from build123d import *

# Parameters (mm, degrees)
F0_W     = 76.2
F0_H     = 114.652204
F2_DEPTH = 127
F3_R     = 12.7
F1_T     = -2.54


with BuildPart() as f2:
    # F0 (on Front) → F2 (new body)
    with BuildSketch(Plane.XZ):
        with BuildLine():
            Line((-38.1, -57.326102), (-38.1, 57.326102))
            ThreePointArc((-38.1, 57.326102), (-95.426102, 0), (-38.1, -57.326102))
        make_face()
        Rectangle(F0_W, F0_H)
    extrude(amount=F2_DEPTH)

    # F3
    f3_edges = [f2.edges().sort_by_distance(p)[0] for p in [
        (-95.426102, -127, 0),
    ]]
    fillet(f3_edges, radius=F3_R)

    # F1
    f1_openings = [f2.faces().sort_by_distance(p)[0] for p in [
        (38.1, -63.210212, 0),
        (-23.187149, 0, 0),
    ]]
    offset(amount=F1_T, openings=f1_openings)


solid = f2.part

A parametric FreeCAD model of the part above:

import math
import FreeCAD as App
import Part
import Sketcher
Q = App.Units.Quantity


def edges_at(feature, points):
    """Names of the edges that pass closest to the given points."""
    edges = feature.Shape.Edges
    near = lambda p: min(range(len(edges)), key=lambda i: edges[i].distToShape(Part.Vertex(*p))[0])
    return sorted({f"Edge{near(p) + 1}" for p in points})


def faces_at(feature, points):
    """Names of the faces that lie closest to the given points."""
    faces = feature.Shape.Faces
    near = lambda p: min(range(len(faces)), key=lambda i: faces[i].distToShape(Part.Vertex(*p))[0])
    return sorted({f"Face{near(p) + 1}" for p in points})

doc = App.newDocument("Part")
body = doc.addObject("PartDesign::Body", "Body")

sketch1 = doc.addObject("Sketcher::SketchObject", "Sketch")
body.addObject(sketch1)
sketch1.AttachmentSupport = (doc.XZ_Plane, [""])
sketch1.MapMode = "FlatFace"
sketch1.addGeometry([
    Part.ArcOfCircle(Part.Circle(App.Vector(-38, 0, 0), App.Vector(0, 0, 1), 57), math.radians(90), math.radians(270)),
    Part.LineSegment(App.Vector(-38, -57, 0), App.Vector(38, -57, 0)),
    Part.LineSegment(App.Vector(38, -57, 0), App.Vector(38, 57, 0)),
    Part.LineSegment(App.Vector(38, 57, 0), App.Vector(-38, 57, 0)),
], False)
sketch1.addConstraint([
    Sketcher.Constraint("Tangent", 0, 2, 1, 1),
    Sketcher.Constraint("Coincident", 1, 2, 2, 1),
    Sketcher.Constraint("Coincident", 2, 2, 3, 1),
    Sketcher.Constraint("Tangent", 3, 2, 0, 1),
    Sketcher.Constraint("Horizontal", 1),
    Sketcher.Constraint("Vertical", 2),
    Sketcher.Constraint("Horizontal", 3),
    Sketcher.Constraint("Symmetric", 0, 2, 2, 2, -1, 1),
    Sketcher.Constraint("DistanceX", 1, 1, 1, 2, Q("3 in")),
    Sketcher.Constraint("Radius", 0, Q("57.326102 mm")),
])
pad1 = doc.addObject("PartDesign::Pad", "Pad")
body.addObject(pad1)
pad1.Profile = sketch1
pad1.Length = Q("5 in")
doc.recompute()

fillet = doc.addObject("PartDesign::Fillet", "Fillet")
body.addObject(fillet)
fillet.Base = (pad1, edges_at(pad1, [(-95.426, -127, 0)]))
fillet.Radius = Q("0.5 in")
doc.recompute()

thickness = doc.addObject("PartDesign::Thickness", "Thickness")
body.addObject(thickness)
thickness.Base = (fillet, faces_at(fillet, [(38.1, -63.5, 0), (-28.663, 0, 0)]))
thickness.Value = Q("0.1 in")
thickness.Reversed = True
thickness.Join = "Arc"

doc.recompute()
